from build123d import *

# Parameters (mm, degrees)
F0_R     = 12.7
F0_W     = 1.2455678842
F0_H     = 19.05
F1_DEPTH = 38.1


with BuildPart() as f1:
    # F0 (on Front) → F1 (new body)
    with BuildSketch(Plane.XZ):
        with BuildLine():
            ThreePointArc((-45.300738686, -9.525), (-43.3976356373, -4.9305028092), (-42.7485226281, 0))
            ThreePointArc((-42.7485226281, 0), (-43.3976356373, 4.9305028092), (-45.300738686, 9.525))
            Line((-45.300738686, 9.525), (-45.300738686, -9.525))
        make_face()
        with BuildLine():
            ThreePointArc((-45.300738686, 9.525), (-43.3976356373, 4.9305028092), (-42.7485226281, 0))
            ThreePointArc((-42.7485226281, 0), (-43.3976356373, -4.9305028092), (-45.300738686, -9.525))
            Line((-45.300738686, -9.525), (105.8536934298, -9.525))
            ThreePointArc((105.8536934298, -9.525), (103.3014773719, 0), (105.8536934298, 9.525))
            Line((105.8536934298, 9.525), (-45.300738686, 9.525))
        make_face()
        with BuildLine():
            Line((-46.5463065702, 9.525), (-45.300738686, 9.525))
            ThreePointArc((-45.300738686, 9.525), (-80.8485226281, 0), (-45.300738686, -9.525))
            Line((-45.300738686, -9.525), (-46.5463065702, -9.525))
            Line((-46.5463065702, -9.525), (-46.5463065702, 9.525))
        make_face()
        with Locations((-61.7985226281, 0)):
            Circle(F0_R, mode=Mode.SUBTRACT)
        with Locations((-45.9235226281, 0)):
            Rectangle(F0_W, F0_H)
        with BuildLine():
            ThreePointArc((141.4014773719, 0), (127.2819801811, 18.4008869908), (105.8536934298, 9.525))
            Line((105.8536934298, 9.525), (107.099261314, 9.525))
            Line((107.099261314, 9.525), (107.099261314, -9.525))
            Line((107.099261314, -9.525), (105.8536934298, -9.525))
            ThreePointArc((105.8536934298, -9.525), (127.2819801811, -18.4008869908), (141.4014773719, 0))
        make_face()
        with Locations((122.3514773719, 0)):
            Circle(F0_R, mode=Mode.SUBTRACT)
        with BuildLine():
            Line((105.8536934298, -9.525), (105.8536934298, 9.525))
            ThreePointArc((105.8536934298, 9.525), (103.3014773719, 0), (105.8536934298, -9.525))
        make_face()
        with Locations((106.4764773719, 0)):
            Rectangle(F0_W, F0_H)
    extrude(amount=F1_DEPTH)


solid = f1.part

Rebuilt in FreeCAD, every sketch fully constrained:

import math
import FreeCAD as App
import Part
import Sketcher
Q = App.Units.Quantity

doc = App.newDocument("Part")
body = doc.addObject("PartDesign::Body", "Body")

# Sketch on XZ plane
sketch1 = doc.addObject("Sketcher::SketchObject", "Sketch")
body.addObject(sketch1)
sketch1.AttachmentSupport = (doc.XZ_Plane, [""])
sketch1.MapMode = "FlatFace"
sketch1.addGeometry([
    Part.LineSegment(App.Vector(-45, -10, 0), App.Vector(106, -10, 0)),  # 0
    Part.ArcOfCircle(Part.Circle(App.Vector(122, 0, 0), App.Vector(0, 0, 1), 19), math.radians(-150), math.radians(0)),  # 1
    Part.ArcOfCircle(Part.Circle(App.Vector(122, 0, 0), App.Vector(0, 0, 1), 19), math.radians(0), math.radians(150)),  # 2
    Part.LineSegment(App.Vector(106, 10, 0), App.Vector(-45, 10, 0)),  # 3
    Part.ArcOfCircle(Part.Circle(App.Vector(-62, 0, 0), App.Vector(0, 0, 1), 19), math.radians(30), math.radians(330)),  # 4
    Part.Circle(App.Vector(-62, 0, 0), App.Vector(0, 0, 1), 13),  # 5
    Part.Circle(App.Vector(122, 0, 0), App.Vector(0, 0, 1), 13),  # 6
], False)
sketch1.addConstraint([
    Sketcher.Constraint("Coincident", 0, 2, 1, 1),
    Sketcher.Constraint("Tangent", 1, 2, 2, 1),
    Sketcher.Constraint("Coincident", 2, 2, 3, 1),
    Sketcher.Constraint("Coincident", 3, 2, 4, 1),
    Sketcher.Constraint("Coincident", 4, 2, 0, 1),
    Sketcher.Constraint("Horizontal", 0),
    Sketcher.Constraint("Horizontal", 3),
    Sketcher.Constraint("Coincident", 5, 3, 4, 3),
    Sketcher.Constraint("Coincident", 6, 3, 1, 3),
    Sketcher.Constraint("Equal", 1, 2),
    Sketcher.Constraint("Equal", 2, 4),
    Sketcher.Constraint("Equal", 5, 6),
    Sketcher.Constraint("Symmetric", 0, 2, 2, 2, -1),
    Sketcher.Constraint("PointOnObject", 4, 3, -1),
    Sketcher.Constraint("PointOnObject", 1, 2, -1),
    Sketcher.Constraint("Diameter", 5, Q("1 in")),
    Sketcher.Constraint("Radius", 1, Q("0.75 in")),
    Sketcher.Constraint("DistanceX", 4, 3, 1, 2, Q("8 in")),
    Sketcher.Constraint("DistanceY", 0, 2, 2, 2, Q("0.75 in")),
    Sketcher.Constraint("DistanceX", 3, 2, -1, 1, 45.300739),
])
pad1 = doc.addObject("PartDesign::Pad", "Pad")
body.addObject(pad1)
pad1.Profile = sketch1
pad1.Length = Q("1.5 in")

doc.recompute()
